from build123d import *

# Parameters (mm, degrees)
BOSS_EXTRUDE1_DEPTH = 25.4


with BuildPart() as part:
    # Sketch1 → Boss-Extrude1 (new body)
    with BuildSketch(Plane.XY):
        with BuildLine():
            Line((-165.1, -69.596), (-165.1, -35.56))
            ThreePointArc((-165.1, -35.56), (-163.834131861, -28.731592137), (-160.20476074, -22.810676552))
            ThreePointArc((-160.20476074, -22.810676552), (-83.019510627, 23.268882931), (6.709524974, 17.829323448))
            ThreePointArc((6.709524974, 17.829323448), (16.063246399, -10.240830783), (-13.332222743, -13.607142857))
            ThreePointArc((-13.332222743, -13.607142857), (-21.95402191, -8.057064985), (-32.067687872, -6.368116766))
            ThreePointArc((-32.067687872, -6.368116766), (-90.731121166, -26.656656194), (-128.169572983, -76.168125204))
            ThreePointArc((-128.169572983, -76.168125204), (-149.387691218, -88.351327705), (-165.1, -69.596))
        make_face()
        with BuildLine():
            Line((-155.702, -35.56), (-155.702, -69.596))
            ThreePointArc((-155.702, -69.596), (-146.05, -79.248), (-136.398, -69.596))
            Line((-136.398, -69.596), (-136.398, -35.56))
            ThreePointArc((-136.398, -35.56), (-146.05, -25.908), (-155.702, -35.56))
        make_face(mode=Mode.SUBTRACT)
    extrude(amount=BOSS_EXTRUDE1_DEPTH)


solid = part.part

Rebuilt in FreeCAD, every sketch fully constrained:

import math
import FreeCAD as App
import Part
import Sketcher
from FreeCAD import Vector
Q = App.Units.Quantity

doc = App.newDocument("Part")
params = doc.addObject("Spreadsheet::Sheet", "Params")
for row, (alias, value) in enumerate([
    ("sketch1_radius", "1 in"),
    ("sketch1_radius2", "6 in"),
    ("sketch1_radius3", "4.2 in"),
    ("sketch1_radius4", "0.75 in"),
    ("sketch1_radius5", "0.38 in"),
    ("pad1_length", "1 in"),
], start=1):
    params.set(f"A{row}", alias)
    params.set(f"B{row}", "=" + value)
    params.setAlias(f"B{row}", alias)

body = doc.addObject("PartDesign::Body", "Body")

# Sketch on XY plane
sketch1 = body.newObject("Sketcher::SketchObject", "Sketch")
sketch1.AttachmentSupport = (doc.getObject("XY_Plane"), [""])
sketch1.MapMode = "FlatFace"
sketch1.addGeometry(Part.LineSegment(Vector(-165, -36, 0), Vector(-165, -70, 0)), False)
sketch1.addGeometry(Part.ArcOfCircle(Part.Circle(Vector(-146, -70, 0), Vector(0, 0, 1), 19), math.radians(180), math.radians(340)), False)
sketch1.addGeometry(Part.ArcOfCircle(Part.Circle(Vector(-28, -113, 0), Vector(0, 0, 1), 107), math.radians(92), math.radians(160)), False)
sketch1.addGeometry(Part.ArcOfCircle(Part.Circle(Vector(-31, -32, 0), Vector(0, 0, 1), 25), math.radians(46), math.radians(92)), False)
sketch1.addGeometry(Part.ArcOfCircle(Part.Circle(Vector(0, 0, 0), Vector(0, 0, 1), 19), math.radians(-134), math.radians(69)), False)
sketch1.addGeometry(Part.ArcOfCircle(Part.Circle(Vector(-47, -125, 0), Vector(0, 0, 1), 152), math.radians(69), math.radians(138)), False)
sketch1.addGeometry(Part.ArcOfCircle(Part.Circle(Vector(-146, -36, 0), Vector(0, 0, 1), 19), math.radians(138), math.radians(180)), False)
sketch1.addGeometry(Part.ArcOfCircle(Part.Circle(Vector(-146, -36, 0), Vector(0, 0, 1), 10), math.radians(0), math.radians(180)), False)
sketch1.addGeometry(Part.LineSegment(Vector(-136, -36, 0), Vector(-136, -70, 0)), False)
sketch1.addGeometry(Part.ArcOfCircle(Part.Circle(Vector(-146, -70, 0), Vector(0, 0, 1), 10), math.radians(180), math.radians(360)), False)
sketch1.addGeometry(Part.LineSegment(Vector(-156, -70, 0), Vector(-156, -36, 0)), False)
sketch1.addConstraint(Sketcher.Constraint("Tangent", 0, 2, 1, 1))
sketch1.addConstraint(Sketcher.Constraint("Tangent", 1, 2, 2, 2))
sketch1.addConstraint(Sketcher.Constraint("Tangent", 2, 1, 3, 2))
sketch1.addConstraint(Sketcher.Constraint("Tangent", 3, 1, 4, 1))
sketch1.addConstraint(Sketcher.Constraint("Tangent", 4, 2, 5, 1))
sketch1.addConstraint(Sketcher.Constraint("Tangent", 5, 2, 6, 1))
sketch1.addConstraint(Sketcher.Constraint("Tangent", 6, 2, 0, 1))
sketch1.addConstraint(Sketcher.Constraint("Tangent", 7, 1, 8, 1))
sketch1.addConstraint(Sketcher.Constraint("Tangent", 8, 2, 9, 2))
sketch1.addConstraint(Sketcher.Constraint("Tangent", 9, 1, 10, 1))
sketch1.addConstraint(Sketcher.Constraint("Tangent", 10, 2, 7, 2))
sketch1.addConstraint(Sketcher.Constraint("Vertical", 0))
sketch1.addConstraint(Sketcher.Constraint("Vertical", 8))
sketch1.addConstraint(Sketcher.Constraint("Vertical", 10))
sketch1.addConstraint(Sketcher.Constraint("Coincident", 4, 3, -1, 1))
sketch1.addConstraint(Sketcher.Constraint("Coincident", 7, 3, 6, 3))
sketch1.addConstraint(Sketcher.Constraint("Coincident", 9, 3, 1, 3))
sketch1.addConstraint(Sketcher.Constraint("Equal", 1, 4))
sketch1.addConstraint(Sketcher.Constraint("Radius", 3, Q("1 in")))
sketch1.addConstraint(Sketcher.Constraint("Radius", 5, Q("6 in")))
sketch1.addConstraint(Sketcher.Constraint("Radius", 2, Q("4.2 in")))
sketch1.addConstraint(Sketcher.Constraint("Radius", 1, Q("0.75 in")))
sketch1.addConstraint(Sketcher.Constraint("Radius", 7, Q("0.38 in")))
sketch1.addConstraint(Sketcher.Constraint("DistanceY", 0, 2, 0, 1, Q("1.34 in")))
sketch1.addConstraint(Sketcher.Constraint("DistanceY", 6, 3, -1, 1, Q("1.4 in")))
sketch1.addConstraint(Sketcher.Constraint("DistanceX", 0, 2, -1, 1, Q("6.5 in")))
sketch1.addConstraint(Sketcher.Constraint("DistanceY", 3, 3, -1, 1, Q("1.25 in")))
sketch1.setExpression("Constraints[18]", "Params.sketch1_radius")
sketch1.setExpression("Constraints[19]", "Params.sketch1_radius2")
sketch1.setExpression("Constraints[20]", "Params.sketch1_radius3")
sketch1.setExpression("Constraints[21]", "Params.sketch1_radius4")
sketch1.setExpression("Constraints[22]", "Params.sketch1_radius5")
pad1 = body.newObject("PartDesign::Pad", "Pad")
pad1.Profile = sketch1
pad1.setExpression("Length", "Params.pad1_length")

doc.recompute()
